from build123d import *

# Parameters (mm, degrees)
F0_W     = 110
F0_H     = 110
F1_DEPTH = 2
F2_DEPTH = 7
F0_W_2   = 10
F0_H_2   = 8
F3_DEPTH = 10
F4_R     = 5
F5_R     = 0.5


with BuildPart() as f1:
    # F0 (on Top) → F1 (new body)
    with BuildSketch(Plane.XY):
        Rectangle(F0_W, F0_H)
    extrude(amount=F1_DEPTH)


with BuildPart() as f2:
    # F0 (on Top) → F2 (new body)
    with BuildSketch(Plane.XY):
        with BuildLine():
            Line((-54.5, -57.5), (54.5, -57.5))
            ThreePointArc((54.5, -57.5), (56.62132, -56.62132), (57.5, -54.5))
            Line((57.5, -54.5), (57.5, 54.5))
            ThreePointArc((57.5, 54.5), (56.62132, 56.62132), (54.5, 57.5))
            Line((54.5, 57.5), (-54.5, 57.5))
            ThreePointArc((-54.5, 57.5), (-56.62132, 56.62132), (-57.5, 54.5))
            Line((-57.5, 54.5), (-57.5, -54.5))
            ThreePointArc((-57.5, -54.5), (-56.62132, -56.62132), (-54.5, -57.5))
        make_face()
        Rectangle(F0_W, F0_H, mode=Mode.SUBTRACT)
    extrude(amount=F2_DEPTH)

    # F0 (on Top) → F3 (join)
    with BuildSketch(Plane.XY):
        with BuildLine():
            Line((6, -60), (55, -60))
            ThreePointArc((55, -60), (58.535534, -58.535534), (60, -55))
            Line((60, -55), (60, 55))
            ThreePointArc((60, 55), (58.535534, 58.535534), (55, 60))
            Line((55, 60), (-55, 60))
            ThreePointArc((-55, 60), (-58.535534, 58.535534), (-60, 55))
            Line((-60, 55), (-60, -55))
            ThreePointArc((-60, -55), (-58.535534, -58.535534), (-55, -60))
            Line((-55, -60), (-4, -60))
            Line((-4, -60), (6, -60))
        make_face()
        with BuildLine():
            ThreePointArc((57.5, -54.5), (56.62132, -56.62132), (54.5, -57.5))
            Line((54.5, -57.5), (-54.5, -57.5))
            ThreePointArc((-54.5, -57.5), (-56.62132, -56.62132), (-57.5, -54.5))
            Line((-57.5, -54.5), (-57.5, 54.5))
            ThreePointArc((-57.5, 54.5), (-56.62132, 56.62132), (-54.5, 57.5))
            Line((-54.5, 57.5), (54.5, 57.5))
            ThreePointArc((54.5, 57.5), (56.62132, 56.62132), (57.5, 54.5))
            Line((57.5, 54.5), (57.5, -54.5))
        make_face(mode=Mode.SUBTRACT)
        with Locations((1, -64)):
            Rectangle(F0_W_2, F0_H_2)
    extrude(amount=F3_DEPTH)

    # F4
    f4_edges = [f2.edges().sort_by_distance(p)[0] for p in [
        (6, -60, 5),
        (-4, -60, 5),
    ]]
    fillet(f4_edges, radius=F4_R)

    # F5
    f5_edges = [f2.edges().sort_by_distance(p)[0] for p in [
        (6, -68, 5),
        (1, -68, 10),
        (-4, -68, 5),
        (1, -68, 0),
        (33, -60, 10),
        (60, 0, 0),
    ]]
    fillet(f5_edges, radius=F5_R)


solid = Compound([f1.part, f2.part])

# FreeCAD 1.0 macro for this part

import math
import FreeCAD as App
import Part
import Sketcher
from FreeCAD import Vector


def edges_at(feature, points):
    """Names of the edges that pass closest to the given points."""
    edges = feature.Shape.Edges
    near = lambda p: min(range(len(edges)), key=lambda i: edges[i].distToShape(Part.Vertex(*p))[0])
    return sorted({f"Edge{near(p) + 1}" for p in points})


def add_polygon(sketch, points):
    """Adds a closed chain of lines whose ends are joined by coincident constraints."""
    first, n = sketch.GeometryCount, len(points)
    for a, b in zip(points, points[1:] + points[:1]):
        sketch.addGeometry(Part.LineSegment(App.Vector(*a, 0), App.Vector(*b, 0)), False)
    for i in range(n):
        sketch.addConstraint(Sketcher.Constraint("Coincident", first + i, 2, first + (i + 1) % n, 1))

doc = App.newDocument("Part")
body = doc.addObject("PartDesign::Body", "Body")

# Sketch on XY plane
sketch1 = doc.addObject("Sketcher::SketchObject", "Sketch")
body.addObject(sketch1)
sketch1.AttachmentSupport = (doc.XY_Plane, [""])
sketch1.MapMode = "FlatFace"
add_polygon(sketch1, [(-55, 55), (-55, -55), (55, -55), (55, 55)])  # lines 0-3
sketch1.addConstraint([
    Sketcher.Constraint("Vertical", 0),
    Sketcher.Constraint("Horizontal", 1),
    Sketcher.Constraint("Vertical", 2),
    Sketcher.Constraint("Horizontal", 3),
    Sketcher.Constraint("Symmetric", 0, 2, 2, 2, -1, 1),
    Sketcher.Constraint("Equal", 3, 0),
    Sketcher.Constraint("DistanceX", 1, 1, 1, 2, 110.0),
])
pad1 = doc.addObject("PartDesign::Pad", "Pad")
body.addObject(pad1)
pad1.Profile = sketch1
pad1.Length = 2
body2 = doc.addObject("PartDesign::Body", "Body001")

# Sketch on XY plane
sketch2 = doc.addObject("Sketcher::SketchObject", "Sketch001")
body2.addObject(sketch2)
sketch2.AttachmentSupport = (doc.getObject("XY_Plane001"), [""])
sketch2.MapMode = "FlatFace"
sketch2.addGeometry(Part.LineSegment(Vector(-54.5, -57.5, 0), Vector(54.5, -57.5, 0)), False)  # 0
sketch2.addGeometry(Part.ArcOfCircle(Part.Circle(Vector(54.499999, -54.499999, 0), Vector(0, 0, 1), 3.000001), math.radians(-89.999978), math.radians(-0.000022)), False)  # 1
sketch2.addGeometry(Part.LineSegment(Vector(57.5, -54.5, 0), Vector(57.5, 54.5, 0)), False)  # 2
sketch2.addGeometry(Part.ArcOfCircle(Part.Circle(Vector(54.499999, 54.499999, 0), Vector(0, 0, 1), 3.000001), math.radians(0.000022), math.radians(89.999978)), False)  # 3
sketch2.addGeometry(Part.LineSegment(Vector(54.5, 57.5, 0), Vector(-54.5, 57.5, 0)), False)  # 4
sketch2.addGeometry(Part.ArcOfCircle(Part.Circle(Vector(-54.499999, 54.499999, 0), Vector(0, 0, 1), 3.000001), math.radians(90.000022), math.radians(179.999978)), False)  # 5
sketch2.addGeometry(Part.LineSegment(Vector(-57.5, 54.5, 0), Vector(-57.5, -54.5, 0)), False)  # 6
sketch2.addGeometry(Part.ArcOfCircle(Part.Circle(Vector(-54.499999, -54.499999, 0), Vector(0, 0, 1), 3.000001), math.radians(-179.999978), math.radians(-90.000022)), False)  # 7
add_polygon(sketch2, [(55, -55), (-55, -55), (-55, 55), (55, 55)])  # lines 8-11
sketch2.addConstraint([
    Sketcher.Constraint("Tangent", 0, 2, 1, 1),
    Sketcher.Constraint("Tangent", 1, 2, 2, 1),
    Sketcher.Constraint("Tangent", 2, 2, 3, 1),
    Sketcher.Constraint("Tangent", 3, 2, 4, 1),
    Sketcher.Constraint("Tangent", 4, 2, 5, 1),
    Sketcher.Constraint("Tangent", 5, 2, 6, 1),
    Sketcher.Constraint("Tangent", 6, 2, 7, 1),
    Sketcher.Constraint("Tangent", 7, 2, 0, 1),
    Sketcher.Constraint("Horizontal", 0),
    Sketcher.Constraint("Vertical", 2),
    Sketcher.Constraint("Horizontal", 4),
    Sketcher.Constraint("Vertical", 6),
    Sketcher.Constraint("Horizontal", 8),
    Sketcher.Constraint("Vertical", 9),
    Sketcher.Constraint("Horizontal", 10),
    Sketcher.Constraint("Vertical", 11),
    Sketcher.Constraint("Equal", 1, 3),
    Sketcher.Constraint("Equal", 3, 5),
    Sketcher.Constraint("Equal", 5, 7),
    Sketcher.Constraint("Symmetric", 1, 3, 5, 3, -1, 1),
    Sketcher.Constraint("Symmetric", 8, 2, 10, 2, -1, 1),
    Sketcher.Constraint("Equal", 4, 2),
    Sketcher.Constraint("Equal", 10, 9),
    Sketcher.Constraint("Radius", 1, 3.000001),
    Sketcher.Constraint("DistanceX", 0, 1, 0, 2, 109.0),
    Sketcher.Constraint("DistanceX", 8, 2, 8, 1, 110.0),
])
pad2 = doc.addObject("PartDesign::Pad", "Pad001")
body2.addObject(pad2)
pad2.Profile = sketch2
pad2.Length = 7

# Sketch on XY plane
sketch3 = doc.addObject("Sketcher::SketchObject", "Sketch002")
body2.addObject(sketch3)
sketch3.AttachmentSupport = (doc.getObject("XY_Plane001"), [""])
sketch3.MapMode = "FlatFace"
sketch3.addGeometry([
    Part.ArcOfCircle(Part.Circle(Vector(55, -55, 0), Vector(0, 0, 1), 5), math.radians(-90.000004), math.radians(0.000004)),  # 0
    Part.LineSegment(Vector(60, -55, 0), Vector(60, 55, 0)),  # 1
    Part.ArcOfCircle(Part.Circle(Vector(55, 55, 0), Vector(0, 0, 1), 5), math.radians(-0.000004), math.radians(90.000004)),  # 2
    Part.LineSegment(Vector(55, 60, 0), Vector(-55, 60, 0)),  # 3
    Part.ArcOfCircle(Part.Circle(Vector(-55, 55, 0), Vector(0, 0, 1), 5), math.radians(89.999996), math.radians(180.000004)),  # 4
    Part.LineSegment(Vector(-60, 55, 0), Vector(-60, -55, 0)),  # 5
    Part.ArcOfCircle(Part.Circle(Vector(-55, -55, 0), Vector(0, 0, 1), 5), math.radians(179.999996), math.radians(270.000004)),  # 6
    Part.LineSegment(Vector(-55, -60, 0), Vector(-4, -60, 0)),  # 7
    Part.LineSegment(Vector(-4, -60, 0), Vector(-4, -68, 0)),  # 8
    Part.LineSegment(Vector(-4, -68, 0), Vector(6, -68, 0)),  # 9
    Part.LineSegment(Vector(6, -68, 0), Vector(6, -60, 0)),  # 10
    Part.LineSegment(Vector(6, -60, 0), Vector(55, -60, 0)),  # 11
    Part.LineSegment(Vector(57.5, 54.5, 0), Vector(57.5, -54.5, 0)),  # 12
    Part.ArcOfCircle(Part.Circle(Vector(54.499999, -54.499999, 0), Vector(0, 0, 1), 3.000001), math.radians(-89.999978), math.radians(-0.000022)),  # 13
    Part.LineSegment(Vector(54.5, -57.5, 0), Vector(-54.5, -57.5, 0)),  # 14
    Part.ArcOfCircle(Part.Circle(Vector(-54.499999, -54.499999, 0), Vector(0, 0, 1), 3.000001), math.radians(-179.999978), math.radians(-90.000022)),  # 15
    Part.LineSegment(Vector(-57.5, -54.5, 0), Vector(-57.5, 54.5, 0)),  # 16
    Part.ArcOfCircle(Part.Circle(Vector(-54.499999, 54.499999, 0), Vector(0, 0, 1), 3.000001), math.radians(90.000022), math.radians(179.999978)),  # 17
    Part.LineSegment(Vector(-54.5, 57.5, 0), Vector(54.5, 57.5, 0)),  # 18
    Part.ArcOfCircle(Part.Circle(Vector(54.499999, 54.499999, 0), Vector(0, 0, 1), 3.000001), math.radians(0.000022), math.radians(89.999978)),  # 19
], False)
sketch3.addConstraint([
    Sketcher.Constraint("Tangent", 0, 2, 1, 1),
    Sketcher.Constraint("Tangent", 1, 2, 2, 1),
    Sketcher.Constraint("Tangent", 2, 2, 3, 1),
    Sketcher.Constraint("Tangent", 3, 2, 4, 1),
    Sketcher.Constraint("Tangent", 4, 2, 5, 1),
    Sketcher.Constraint("Tangent", 5, 2, 6, 1),
    Sketcher.Constraint("Tangent", 6, 2, 7, 1),
    Sketcher.Constraint("Coincident", 7, 2, 8, 1),
    Sketcher.Constraint("Coincident", 8, 2, 9, 1),
    Sketcher.Constraint("Coincident", 9, 2, 10, 1),
    Sketcher.Constraint("Coincident", 10, 2, 11, 1),
    Sketcher.Constraint("Tangent", 11, 2, 0, 1),
    Sketcher.Constraint("Tangent", 12, 2, 13, 2),
    Sketcher.Constraint("Tangent", 13, 1, 14, 1),
    Sketcher.Constraint("Tangent", 14, 2, 15, 2),
    Sketcher.Constraint("Tangent", 15, 1, 16, 1),
    Sketcher.Constraint("Tangent", 16, 2, 17, 2),
    Sketcher.Constraint("Tangent", 17, 1, 18, 1),
    Sketcher.Constraint("Tangent", 18, 2, 19, 2),
    Sketcher.Constraint("Tangent", 19, 1, 12, 1),
    Sketcher.Constraint("Vertical", 1),
    Sketcher.Constraint("Horizontal", 3),
    Sketcher.Constraint("Vertical", 5),
    Sketcher.Constraint("Horizontal", 7),
    Sketcher.Constraint("Vertical", 8),
    Sketcher.Constraint("Horizontal", 9),
    Sketcher.Constraint("Vertical", 10),
    Sketcher.Constraint("Horizontal", 11),
    Sketcher.Constraint("Vertical", 12),
    Sketcher.Constraint("Horizontal", 14),
    Sketcher.Constraint("Vertical", 16),
    Sketcher.Constraint("Horizontal", 18),
    Sketcher.Constraint("Equal", 0, 2),
    Sketcher.Constraint("Equal", 2, 4),
    Sketcher.Constraint("Equal", 4, 6),
    Sketcher.Constraint("Equal", 13, 15),
    Sketcher.Constraint("Equal", 15, 17),
    Sketcher.Constraint("Equal", 17, 19),
    Sketcher.Constraint("Symmetric", 0, 3, 4, 3, -1, 1),
    Sketcher.Constraint("Symmetric", 13, 3, 17, 3, -1, 1),
    Sketcher.Constraint("Horizontal", 0, 3, 6, 3),
    Sketcher.Constraint("Equal", 3, 1),
    Sketcher.Constraint("Equal", 18, 12),
    Sketcher.Constraint("Radius", 0, 5.0),
    Sketcher.Constraint("Radius", 13, 3.000001),
    Sketcher.Constraint("DistanceX", 3, 2, 3, 1, 110.0),
    Sketcher.Constraint("DistanceX", 7, 1, 7, 2, 51.0),
    Sketcher.Constraint("DistanceX", 9, 1, 9, 2, 10.0),
    Sketcher.Constraint("DistanceX", 14, 2, 14, 1, 109.0),
    Sketcher.Constraint("DistanceY", 8, 2, 8, 1, 8.0),
])
pad3 = doc.addObject("PartDesign::Pad", "Pad002")
body2.addObject(pad3)
pad3.Profile = sketch3
pad3.Length = 10
doc.recompute()

fillet = doc.addObject("PartDesign::Fillet", "Fillet")
body2.addObject(fillet)
fillet.Base = (pad3, edges_at(pad3, [(6, -60, 5), (-4, -60, 5)]))
fillet.Radius = 5
doc.recompute()

fillet2 = doc.addObject("PartDesign::Fillet", "Fillet001")
body2.addObject(fillet2)
fillet2.Base = (fillet, edges_at(fillet, [
    (6, -68, 5),
    (1, -68, 10),
    (-4, -68, 5),
    (1, -68, 0),
    (33, -60, 10),
    (60, 0, 0),
]))
fillet2.Radius = 0.5

doc.recompute()
